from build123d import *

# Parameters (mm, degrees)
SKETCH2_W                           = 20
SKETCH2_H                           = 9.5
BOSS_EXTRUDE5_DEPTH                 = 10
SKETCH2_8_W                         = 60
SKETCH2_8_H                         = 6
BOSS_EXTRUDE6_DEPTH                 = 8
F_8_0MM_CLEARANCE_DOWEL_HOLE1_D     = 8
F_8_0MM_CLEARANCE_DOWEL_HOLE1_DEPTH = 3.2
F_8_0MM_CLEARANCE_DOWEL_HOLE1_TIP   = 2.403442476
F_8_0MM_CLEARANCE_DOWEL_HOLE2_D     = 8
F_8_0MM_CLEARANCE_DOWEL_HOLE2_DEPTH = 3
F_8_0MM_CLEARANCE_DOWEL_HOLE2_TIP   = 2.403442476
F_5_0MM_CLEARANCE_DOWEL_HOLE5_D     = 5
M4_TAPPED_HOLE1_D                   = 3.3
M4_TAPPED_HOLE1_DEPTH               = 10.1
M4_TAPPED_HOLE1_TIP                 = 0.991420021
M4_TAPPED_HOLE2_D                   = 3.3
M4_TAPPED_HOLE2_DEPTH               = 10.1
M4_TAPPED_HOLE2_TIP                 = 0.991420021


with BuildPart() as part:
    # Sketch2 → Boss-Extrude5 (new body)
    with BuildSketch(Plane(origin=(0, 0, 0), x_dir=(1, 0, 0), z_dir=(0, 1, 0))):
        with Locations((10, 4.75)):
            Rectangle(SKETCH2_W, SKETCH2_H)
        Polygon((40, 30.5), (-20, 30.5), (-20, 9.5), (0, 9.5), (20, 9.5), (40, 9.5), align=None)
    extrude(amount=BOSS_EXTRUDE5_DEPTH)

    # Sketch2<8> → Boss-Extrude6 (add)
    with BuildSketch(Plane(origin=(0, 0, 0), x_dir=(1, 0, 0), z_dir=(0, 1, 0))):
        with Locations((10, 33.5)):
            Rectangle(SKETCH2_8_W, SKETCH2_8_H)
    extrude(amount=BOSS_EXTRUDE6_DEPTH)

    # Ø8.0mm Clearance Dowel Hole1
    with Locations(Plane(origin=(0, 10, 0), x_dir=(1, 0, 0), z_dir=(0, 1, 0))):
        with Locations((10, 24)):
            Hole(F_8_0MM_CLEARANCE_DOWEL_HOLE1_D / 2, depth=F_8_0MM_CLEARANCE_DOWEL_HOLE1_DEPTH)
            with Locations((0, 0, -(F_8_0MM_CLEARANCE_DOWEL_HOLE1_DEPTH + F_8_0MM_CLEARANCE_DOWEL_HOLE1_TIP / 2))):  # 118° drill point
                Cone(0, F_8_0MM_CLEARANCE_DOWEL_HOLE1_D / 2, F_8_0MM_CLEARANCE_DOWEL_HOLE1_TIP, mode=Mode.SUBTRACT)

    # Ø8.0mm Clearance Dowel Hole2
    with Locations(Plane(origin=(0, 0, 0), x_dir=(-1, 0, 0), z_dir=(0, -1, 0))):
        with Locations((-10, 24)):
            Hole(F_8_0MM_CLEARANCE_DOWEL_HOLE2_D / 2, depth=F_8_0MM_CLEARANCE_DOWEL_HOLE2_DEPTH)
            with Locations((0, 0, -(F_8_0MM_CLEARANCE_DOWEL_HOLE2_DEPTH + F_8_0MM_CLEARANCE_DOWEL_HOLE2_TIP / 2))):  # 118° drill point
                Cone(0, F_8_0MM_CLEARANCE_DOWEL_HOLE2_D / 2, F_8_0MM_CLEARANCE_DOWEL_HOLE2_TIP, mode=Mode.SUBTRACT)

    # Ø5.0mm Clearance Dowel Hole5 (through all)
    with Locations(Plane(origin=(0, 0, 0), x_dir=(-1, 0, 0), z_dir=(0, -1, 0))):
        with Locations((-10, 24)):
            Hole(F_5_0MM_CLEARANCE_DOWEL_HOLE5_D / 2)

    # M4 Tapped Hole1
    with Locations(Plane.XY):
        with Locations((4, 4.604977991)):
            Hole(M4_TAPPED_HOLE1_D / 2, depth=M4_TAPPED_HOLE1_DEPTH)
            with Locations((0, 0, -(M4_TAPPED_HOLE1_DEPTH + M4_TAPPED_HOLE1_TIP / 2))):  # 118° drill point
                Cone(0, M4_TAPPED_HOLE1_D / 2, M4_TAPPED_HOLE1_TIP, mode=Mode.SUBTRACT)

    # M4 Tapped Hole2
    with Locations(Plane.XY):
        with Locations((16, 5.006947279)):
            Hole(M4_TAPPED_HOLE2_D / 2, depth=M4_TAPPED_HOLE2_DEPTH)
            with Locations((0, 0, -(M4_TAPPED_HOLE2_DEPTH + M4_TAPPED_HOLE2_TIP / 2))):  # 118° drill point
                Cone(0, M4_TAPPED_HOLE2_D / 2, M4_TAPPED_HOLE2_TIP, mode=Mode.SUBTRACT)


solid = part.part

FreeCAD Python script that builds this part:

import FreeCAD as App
import Part
import Sketcher


def add_polygon(sketch, points):
    """Adds a closed chain of lines whose ends are joined by coincident constraints."""
    first, n = sketch.GeometryCount, len(points)
    for a, b in zip(points, points[1:] + points[:1]):
        sketch.addGeometry(Part.LineSegment(App.Vector(*a, 0), App.Vector(*b, 0)), False)
    for i in range(n):
        sketch.addConstraint(Sketcher.Constraint("Coincident", first + i, 2, first + (i + 1) % n, 1))

doc = App.newDocument("Part")
body = doc.addObject("PartDesign::Body", "Body")

# Sketch on XZ plane
sketch1 = body.newObject("Sketcher::SketchObject", "Sketch")
sketch1.AttachmentSupport = (doc.getObject("XZ_Plane"), [""])
sketch1.MapMode = "FlatFace"
add_polygon(sketch1, [(0, -9.5), (0, 0), (20, 0), (20, -9.5), (40, -9.5), (40, -30.5), (-20, -30.5), (-20, -9.5)])  # lines 0-7
sketch1.addConstraint(Sketcher.Constraint("Vertical", 0))
sketch1.addConstraint(Sketcher.Constraint("Horizontal", 1))
sketch1.addConstraint(Sketcher.Constraint("Vertical", 2))
sketch1.addConstraint(Sketcher.Constraint("Horizontal", 3))
sketch1.addConstraint(Sketcher.Constraint("Vertical", 4))
sketch1.addConstraint(Sketcher.Constraint("Horizontal", 5))
sketch1.addConstraint(Sketcher.Constraint("Vertical", 6))
sketch1.addConstraint(Sketcher.Constraint("Horizontal", 7))
sketch1.addConstraint(Sketcher.Constraint("Coincident", 0, 2, -1, 1))
sketch1.addConstraint(Sketcher.Constraint("Symmetric", 2, 2, 6, 2, -2))
sketch1.addConstraint(Sketcher.Constraint("Equal", 1, 3))
sketch1.addConstraint(Sketcher.Constraint("DistanceX", 1, 1, 1, 2, 20.0))
sketch1.addConstraint(Sketcher.Constraint("DistanceY", 4, 2, 4, 1, 21.0))
sketch1.addConstraint(Sketcher.Constraint("DistanceY", 0, 1, 0, 2, 9.5))
pad1 = body.newObject("PartDesign::Pad", "Pad")
pad1.Profile = sketch1
pad1.Length = 10
pad1.Reversed = True

# Sketch on XZ plane
sketch2 = body.newObject("Sketcher::SketchObject", "Sketch001")
sketch2.AttachmentSupport = (doc.getObject("XZ_Plane"), [""])
sketch2.MapMode = "FlatFace"
add_polygon(sketch2, [(-20, -36.5), (-20, -30.5), (40, -30.5), (40, -36.5)])  # lines 0-3
sketch2.addConstraint(Sketcher.Constraint("Vertical", 0))
sketch2.addConstraint(Sketcher.Constraint("Horizontal", 1))
sketch2.addConstraint(Sketcher.Constraint("Vertical", 2))
sketch2.addConstraint(Sketcher.Constraint("Horizontal", 3))
sketch2.addConstraint(Sketcher.Constraint("DistanceX", 1, 1, 1, 2, 60.0))
sketch2.addConstraint(Sketcher.Constraint("DistanceY", 0, 1, 0, 2, 6.0))
sketch2.addConstraint(Sketcher.Constraint("DistanceX", 0, 2, -1, 1, 20.0))
sketch2.addConstraint(Sketcher.Constraint("DistanceY", 0, 2, -1, 1, 30.5))
pad2 = body.newObject("PartDesign::Pad", "Pad001")
pad2.Profile = sketch2
pad2.Length = 8
pad2.Reversed = True

# Sketch on XZ plane
sketch3 = body.newObject("Sketcher::SketchObject", "Sketch002")
sketch3.AttachmentSupport = (doc.getObject("XZ_Plane"), [""])
sketch3.MapMode = "FlatFace"
sketch3.AttachmentOffset = App.Placement(App.Vector(0, 0, -10), App.Rotation())
sketch3.addGeometry(Part.Circle(App.Vector(10, -24, 0), App.Vector(0, 0, 1), 4), False)
sketch3.addConstraint(Sketcher.Constraint("Diameter", 0, 8.0))
sketch3.addConstraint(Sketcher.Constraint("DistanceX", -1, 1, 0, 3, 10.0))
sketch3.addConstraint(Sketcher.Constraint("DistanceY", 0, 3, -1, 1, 24.0))
doc.recompute()
hole = body.newObject("PartDesign::Hole", "Hole")
hole.Profile = sketch3
hole.ThreadType = "None"
hole.Diameter = 8
hole.DepthType = "Dimension"
hole.Depth = 3.2
hole.DrillPoint = "Angled"
hole.DrillPointAngle = 118
hole.Reversed = True

# Sketch on XZ plane
sketch4 = body.newObject("Sketcher::SketchObject", "Sketch003")
sketch4.AttachmentSupport = (doc.getObject("XZ_Plane"), [""])
sketch4.MapMode = "FlatFace"
sketch4.addGeometry(Part.Circle(App.Vector(10, -24, 0), App.Vector(0, 0, 1), 4), False)
sketch4.addConstraint(Sketcher.Constraint("Diameter", 0, 8.0))
sketch4.addConstraint(Sketcher.Constraint("DistanceX", -1, 1, 0, 3, 10.0))
sketch4.addConstraint(Sketcher.Constraint("DistanceY", 0, 3, -1, 1, 24.0))
doc.recompute()
hole2 = body.newObject("PartDesign::Hole", "Hole001")
hole2.Profile = sketch4
hole2.ThreadType = "None"
hole2.Diameter = 8
hole2.DepthType = "Dimension"
hole2.Depth = 3
hole2.DrillPoint = "Angled"
hole2.DrillPointAngle = 118

# Sketch on XZ plane
sketch5 = body.newObject("Sketcher::SketchObject", "Sketch004")
sketch5.AttachmentSupport = (doc.getObject("XZ_Plane"), [""])
sketch5.MapMode = "FlatFace"
sketch5.addGeometry(Part.Circle(App.Vector(10, -24, 0), App.Vector(0, 0, 1), 2.5), False)
sketch5.addConstraint(Sketcher.Constraint("Diameter", 0, 5.0))
sketch5.addConstraint(Sketcher.Constraint("DistanceX", -1, 1, 0, 3, 10.0))
sketch5.addConstraint(Sketcher.Constraint("DistanceY", 0, 3, -1, 1, 24.0))
doc.recompute()
hole3 = body.newObject("PartDesign::Hole", "Hole002")
hole3.Profile = sketch5
hole3.ThreadType = "None"
hole3.Diameter = 5
hole3.DepthType = "ThroughAll"

# Sketch on XY plane
sketch6 = body.newObject("Sketcher::SketchObject", "Sketch005")
sketch6.AttachmentSupport = (doc.getObject("XY_Plane"), [""])
sketch6.MapMode = "FlatFace"
sketch6.addGeometry(Part.Circle(App.Vector(4, 4.604978, 0), App.Vector(0, 0, 1), 1.65), False)
sketch6.addConstraint(Sketcher.Constraint("Diameter", 0, 3.3))
sketch6.addConstraint(Sketcher.Constraint("DistanceX", -1, 1, 0, 3, 4.0))
sketch6.addConstraint(Sketcher.Constraint("DistanceY", -1, 1, 0, 3, 4.604978))
doc.recompute()
hole4 = body.newObject("PartDesign::Hole", "Hole003")
hole4.Profile = sketch6
hole4.ThreadType = "None"
hole4.Diameter = 3.3
hole4.DepthType = "Dimension"
hole4.Depth = 10.1
hole4.DrillPoint = "Angled"
hole4.DrillPointAngle = 118

# Sketch on XY plane
sketch7 = body.newObject("Sketcher::SketchObject", "Sketch006")
sketch7.AttachmentSupport = (doc.getObject("XY_Plane"), [""])
sketch7.MapMode = "FlatFace"
sketch7.addGeometry(Part.Circle(App.Vector(16, 5.006947, 0), App.Vector(0, 0, 1), 1.65), False)
sketch7.addConstraint(Sketcher.Constraint("Diameter", 0, 3.3))
sketch7.addConstraint(Sketcher.Constraint("DistanceX", -1, 1, 0, 3, 16.0))
sketch7.addConstraint(Sketcher.Constraint("DistanceY", -1, 1, 0, 3, 5.006947))
doc.recompute()
hole5 = body.newObject("PartDesign::Hole", "Hole004")
hole5.Profile = sketch7
hole5.ThreadType = "None"
hole5.Diameter = 3.3
hole5.DepthType = "Dimension"
hole5.Depth = 10.1
hole5.DrillPoint = "Angled"
hole5.DrillPointAngle = 118

doc.recompute()
